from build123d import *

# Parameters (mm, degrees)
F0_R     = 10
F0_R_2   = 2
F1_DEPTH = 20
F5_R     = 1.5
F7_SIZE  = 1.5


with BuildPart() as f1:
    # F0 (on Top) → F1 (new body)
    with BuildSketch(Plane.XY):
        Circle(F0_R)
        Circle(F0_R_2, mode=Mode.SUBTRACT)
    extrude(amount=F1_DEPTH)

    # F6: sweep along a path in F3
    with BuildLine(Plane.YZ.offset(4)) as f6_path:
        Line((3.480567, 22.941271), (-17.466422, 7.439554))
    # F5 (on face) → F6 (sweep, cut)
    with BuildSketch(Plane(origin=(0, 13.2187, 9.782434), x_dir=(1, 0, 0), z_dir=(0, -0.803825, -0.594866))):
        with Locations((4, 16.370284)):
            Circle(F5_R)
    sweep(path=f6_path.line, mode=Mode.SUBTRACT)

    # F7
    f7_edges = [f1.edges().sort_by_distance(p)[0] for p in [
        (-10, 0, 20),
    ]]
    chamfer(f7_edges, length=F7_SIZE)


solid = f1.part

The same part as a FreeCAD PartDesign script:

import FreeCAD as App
import Part
import Sketcher

V = App.Vector


def edges_at(feature, points):
    """Names of the edges that pass closest to the given points."""
    edges = feature.Shape.Edges
    near = lambda p: min(range(len(edges)), key=lambda i: edges[i].distToShape(Part.Vertex(*p))[0])
    return sorted({f"Edge{near(p) + 1}" for p in points})

doc = App.newDocument("Part")
body = doc.addObject("PartDesign::Body", "Body")

# Sketch on XY plane
sketch1 = body.newObject("Sketcher::SketchObject", "Sketch")
sketch1.AttachmentSupport = (doc.getObject("XY_Plane"), [""])
sketch1.MapMode = "FlatFace"
sketch1.addGeometry([
    Part.Circle(V(0, 0, 0), V(0, 0, 1), 10),
    Part.Circle(V(0, 0, 0), V(0, 0, 1), 2),
], False)
sketch1.addConstraint([
    Sketcher.Constraint("Coincident", 0, 3, -1, 1),
    Sketcher.Constraint("Coincident", 1, 3, -1, 1),
    Sketcher.Constraint("Diameter", 0, 20.0),
    Sketcher.Constraint("Diameter", 1, 4.0),
])
pad1 = body.newObject("PartDesign::Pad", "Pad")
pad1.Profile = sketch1
pad1.Length = 20

# Sketch on an angled plane
sketch2 = body.newObject("Sketcher::SketchObject", "Sketch001")
sketch2.Placement = App.Placement(V(0, 13.2187, 9.782434), App.Rotation(V(1, 0, 0), V(0, -0.594865944, 0.803824924), V(0, -0.803824924, -0.594865944), "ZXY"))
sketch2.addGeometry(Part.Circle(V(4, 16.4, 0), V(0, 0, 1), 1.5), False)
sketch2.addConstraint([
    Sketcher.Constraint("Diameter", 0, 3.0),
    Sketcher.Constraint("DistanceX", -1, 1, 0, 3, 4.0),
    Sketcher.Constraint("DistanceY", -1, 1, 0, 3, 16.370284),
])

# Sketch on an angled plane
sketch3 = body.newObject("Sketcher::SketchObject", "Sketch002")
sketch3.Placement = App.Placement(V(0, -9.738133, 13.158837), App.Rotation(V(0, 0.803824556, 0.594866441), V(0.999999999, 0, 0), V(0, 0.594866441, -0.803824556), "ZXY"))
sketch3.addGeometry(Part.LineSegment(V(16, 4, 0), V(-10, 4, 0)), False)
sketch3.addConstraint([
    Sketcher.Constraint("Horizontal", 0),
    Sketcher.Constraint("DistanceY", -1, 1, 0, 1, 4.0),
    Sketcher.Constraint("DistanceX", 0, 2, 0, 1, 26.059155),
    Sketcher.Constraint("DistanceX", -1, 1, 0, 1, 16.444757),
])
doc.recompute()

subtractivepipe = body.newObject("PartDesign::SubtractivePipe", "SubtractivePipe")
subtractivepipe.Profile = sketch2
subtractivepipe.Spine = (sketch3, ["Edge1"])
doc.recompute()

chamfer = body.newObject("PartDesign::Chamfer", "Chamfer")
chamfer.Base = (subtractivepipe, edges_at(subtractivepipe, [(-10, 0, 20)]))
chamfer.Size = 1.5

doc.recompute()
